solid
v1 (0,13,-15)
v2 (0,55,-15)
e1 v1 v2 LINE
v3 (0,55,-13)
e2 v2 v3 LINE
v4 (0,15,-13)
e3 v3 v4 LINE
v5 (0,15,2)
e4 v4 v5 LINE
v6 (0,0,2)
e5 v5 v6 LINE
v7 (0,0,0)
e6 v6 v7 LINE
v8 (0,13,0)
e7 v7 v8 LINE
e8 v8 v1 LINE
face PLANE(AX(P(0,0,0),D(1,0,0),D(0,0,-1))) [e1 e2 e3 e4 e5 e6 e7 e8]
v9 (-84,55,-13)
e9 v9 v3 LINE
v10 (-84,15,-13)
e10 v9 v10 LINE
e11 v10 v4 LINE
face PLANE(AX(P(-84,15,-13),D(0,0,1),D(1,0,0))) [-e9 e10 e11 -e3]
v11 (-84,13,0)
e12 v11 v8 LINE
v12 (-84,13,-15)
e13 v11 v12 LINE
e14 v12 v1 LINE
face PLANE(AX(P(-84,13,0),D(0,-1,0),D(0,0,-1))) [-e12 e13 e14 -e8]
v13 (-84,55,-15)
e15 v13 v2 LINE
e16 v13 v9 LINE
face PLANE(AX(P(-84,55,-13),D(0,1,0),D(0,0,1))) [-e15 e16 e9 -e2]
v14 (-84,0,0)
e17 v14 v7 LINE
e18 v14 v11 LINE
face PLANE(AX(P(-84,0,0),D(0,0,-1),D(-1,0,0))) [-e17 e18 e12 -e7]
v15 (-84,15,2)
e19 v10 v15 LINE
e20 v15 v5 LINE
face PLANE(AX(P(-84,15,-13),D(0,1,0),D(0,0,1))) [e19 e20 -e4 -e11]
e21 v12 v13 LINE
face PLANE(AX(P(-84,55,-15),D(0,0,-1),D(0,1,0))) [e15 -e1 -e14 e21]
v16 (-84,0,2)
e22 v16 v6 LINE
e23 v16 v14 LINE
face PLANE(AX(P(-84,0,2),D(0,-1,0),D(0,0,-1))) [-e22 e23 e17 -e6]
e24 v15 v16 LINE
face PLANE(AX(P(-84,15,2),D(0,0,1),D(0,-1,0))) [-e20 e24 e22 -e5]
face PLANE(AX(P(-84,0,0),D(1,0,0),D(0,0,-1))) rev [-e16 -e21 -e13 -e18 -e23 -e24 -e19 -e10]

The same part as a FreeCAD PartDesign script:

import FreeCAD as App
import Part
import Sketcher
from FreeCAD import Vector

doc = App.newDocument("Part")
body = doc.addObject("PartDesign::Body", "Body")

sketch1 = body.newObject("Sketcher::SketchObject", "Sketch")
sketch1.AttachmentSupport = (doc.getObject("YZ_Plane"), [""])
sketch1.MapMode = "FlatFace"
sketch1.addGeometry(Part.LineSegment(Vector(0, 0, 0), Vector(13, 0, 0)), False)
sketch1.addGeometry(Part.LineSegment(Vector(13, 0, 0), Vector(13, -15, 0)), False)
sketch1.addGeometry(Part.LineSegment(Vector(13, -15, 0), Vector(55, -15, 0)), False)
sketch1.addGeometry(Part.LineSegment(Vector(55, -15, 0), Vector(55, -13, 0)), False)
sketch1.addGeometry(Part.LineSegment(Vector(55, -13, 0), Vector(15, -13, 0)), False)
sketch1.addGeometry(Part.LineSegment(Vector(15, -13, 0), Vector(15, 2, 0)), False)
sketch1.addGeometry(Part.LineSegment(Vector(15, 2, 0), Vector(0, 2, 0)), False)
sketch1.addGeometry(Part.LineSegment(Vector(0, 2, 0), Vector(0, 0, 0)), False)
sketch1.addConstraint(Sketcher.Constraint("Coincident", 0, 2, 1, 1))
sketch1.addConstraint(Sketcher.Constraint("Coincident", 1, 2, 2, 1))
sketch1.addConstraint(Sketcher.Constraint("Coincident", 2, 2, 3, 1))
sketch1.addConstraint(Sketcher.Constraint("Coincident", 3, 2, 4, 1))
sketch1.addConstraint(Sketcher.Constraint("Coincident", 4, 2, 5, 1))
sketch1.addConstraint(Sketcher.Constraint("Coincident", 5, 2, 6, 1))
sketch1.addConstraint(Sketcher.Constraint("Coincident", 6, 2, 7, 1))
sketch1.addConstraint(Sketcher.Constraint("Coincident", 7, 2, 0, 1))
sketch1.addConstraint(Sketcher.Constraint("Horizontal", 0))
sketch1.addConstraint(Sketcher.Constraint("Vertical", 1))
sketch1.addConstraint(Sketcher.Constraint("Horizontal", 2))
sketch1.addConstraint(Sketcher.Constraint("Vertical", 3))
sketch1.addConstraint(Sketcher.Constraint("Horizontal", 4))
sketch1.addConstraint(Sketcher.Constraint("Vertical", 5))
sketch1.addConstraint(Sketcher.Constraint("Horizontal", 6))
sketch1.addConstraint(Sketcher.Constraint("Vertical", 7))
sketch1.addConstraint(Sketcher.Constraint("Coincident", 7, 2, -1, 1))
sketch1.addConstraint(Sketcher.Constraint("Equal", 6, 1))
sketch1.addConstraint(Sketcher.Constraint("Equal", 1, 5))
sketch1.addConstraint(Sketcher.Constraint("DistanceX", 0, 1, 0, 2, 13.0))
sketch1.addConstraint(Sketcher.Constraint("DistanceX", 2, 1, 2, 2, 42.0))
sketch1.addConstraint(Sketcher.Constraint("DistanceX", 4, 2, 4, 1, 40.0))
sketch1.addConstraint(Sketcher.Constraint("DistanceY", 3, 1, 3, 2, 2.0))
pad1 = body.newObject("PartDesign::Pad", "Pad")
pad1.Profile = sketch1
pad1.Length = 84
pad1.Reversed = True

doc.recompute()
